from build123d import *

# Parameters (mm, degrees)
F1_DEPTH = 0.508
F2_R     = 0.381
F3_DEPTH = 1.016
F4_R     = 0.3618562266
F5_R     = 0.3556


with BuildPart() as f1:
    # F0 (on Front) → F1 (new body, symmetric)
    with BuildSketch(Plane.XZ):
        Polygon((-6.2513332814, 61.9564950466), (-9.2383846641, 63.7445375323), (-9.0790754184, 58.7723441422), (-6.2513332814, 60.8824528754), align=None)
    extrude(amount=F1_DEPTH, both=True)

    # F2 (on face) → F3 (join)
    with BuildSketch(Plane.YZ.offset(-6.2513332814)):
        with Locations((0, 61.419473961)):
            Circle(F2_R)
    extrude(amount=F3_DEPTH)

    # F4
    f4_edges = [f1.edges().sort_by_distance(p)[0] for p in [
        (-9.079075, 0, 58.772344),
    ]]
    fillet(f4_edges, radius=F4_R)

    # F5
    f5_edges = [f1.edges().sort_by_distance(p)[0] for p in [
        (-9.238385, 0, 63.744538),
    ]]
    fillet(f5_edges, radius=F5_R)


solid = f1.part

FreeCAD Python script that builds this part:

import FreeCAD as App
import Part
import Sketcher

V = App.Vector
Q = App.Units.Quantity


def edges_at(feature, points):
    """Names of the edges that pass closest to the given points."""
    edges = feature.Shape.Edges
    near = lambda p: min(range(len(edges)), key=lambda i: edges[i].distToShape(Part.Vertex(*p))[0])
    return sorted({f"Edge{near(p) + 1}" for p in points})

doc = App.newDocument("Part")
body = doc.addObject("PartDesign::Body", "Body")

# Sketch on XZ plane
sketch1 = doc.addObject("Sketcher::SketchObject", "Sketch")
body.addObject(sketch1)
sketch1.AttachmentSupport = (doc.XZ_Plane, [""])
sketch1.MapMode = "FlatFace"
sketch1.addGeometry(Part.LineSegment(V(-6.3, 62, 0), V(-9.2, 63.7, 0)), False)
sketch1.addGeometry(Part.LineSegment(V(-9.2, 63.7, 0), V(-9.1, 58.8, 0)), False)
sketch1.addGeometry(Part.LineSegment(V(-9.1, 58.8, 0), V(-6.3, 60.9, 0)), False)
sketch1.addGeometry(Part.LineSegment(V(-6.3, 60.9, 0), V(-6.3, 62, 0)), False)
sketch1.addConstraint(Sketcher.Constraint("Coincident", 0, 2, 1, 1))
sketch1.addConstraint(Sketcher.Constraint("Coincident", 1, 2, 2, 1))
sketch1.addConstraint(Sketcher.Constraint("Coincident", 2, 2, 3, 1))
sketch1.addConstraint(Sketcher.Constraint("Coincident", 3, 2, 0, 1))
sketch1.addConstraint(Sketcher.Constraint("Vertical", 3))
sketch1.addConstraint(Sketcher.Constraint("Distance", 2, 3.528269))
sketch1.addConstraint(Sketcher.Constraint("DistanceY", 3, 1, 3, 2, 1.074042))
sketch1.addConstraint(Sketcher.Constraint("DistanceX", 0, 2, 1, 2, 0.159309))
sketch1.addConstraint(Sketcher.Constraint("DistanceY", 1, 2, 2, 2, 2.110109))
sketch1.addConstraint(Sketcher.Constraint("Distance", 0, 3.481318))
sketch1.addConstraint(Sketcher.Constraint("DistanceX", 0, 2, -1, 1, 9.238385))
sketch1.addConstraint(Sketcher.Constraint("DistanceY", -1, 1, 0, 2, 63.744538))
pad1 = doc.addObject("PartDesign::Pad", "Pad")
body.addObject(pad1)
pad1.Profile = sketch1
pad1.Length = Q("0.04 in")
pad1.Midplane = True

# Sketch on YZ plane
sketch2 = doc.addObject("Sketcher::SketchObject", "Sketch001")
body.addObject(sketch2)
sketch2.AttachmentSupport = (doc.YZ_Plane, [""])
sketch2.MapMode = "FlatFace"
sketch2.AttachmentOffset = App.Placement(V(0, 0, -6.251333), App.Rotation())
sketch2.addGeometry(Part.Circle(V(0, 61.42, 0), V(0, 0, 1), 0.38), False)
sketch2.addConstraint(Sketcher.Constraint("PointOnObject", 0, 3, -2))
sketch2.addConstraint(Sketcher.Constraint("Diameter", 0, Q("0.03 in")))
sketch2.addConstraint(Sketcher.Constraint("DistanceY", -1, 1, 0, 3, 61.419474))
pad2 = doc.addObject("PartDesign::Pad", "Pad001")
body.addObject(pad2)
pad2.Profile = sketch2
pad2.Length = Q("0.04 in")
doc.recompute()

fillet = doc.addObject("PartDesign::Fillet", "Fillet")
body.addObject(fillet)
fillet.Base = (pad2, edges_at(pad2, [(-9.079, 0, 58.772)]))
fillet.Radius = 0.361856
doc.recompute()

fillet2 = doc.addObject("PartDesign::Fillet", "Fillet001")
body.addObject(fillet2)
fillet2.Base = (fillet, edges_at(fillet, [(-9.238, 0, 63.745)]))
fillet2.Radius = Q("0.014 in")

doc.recompute()
